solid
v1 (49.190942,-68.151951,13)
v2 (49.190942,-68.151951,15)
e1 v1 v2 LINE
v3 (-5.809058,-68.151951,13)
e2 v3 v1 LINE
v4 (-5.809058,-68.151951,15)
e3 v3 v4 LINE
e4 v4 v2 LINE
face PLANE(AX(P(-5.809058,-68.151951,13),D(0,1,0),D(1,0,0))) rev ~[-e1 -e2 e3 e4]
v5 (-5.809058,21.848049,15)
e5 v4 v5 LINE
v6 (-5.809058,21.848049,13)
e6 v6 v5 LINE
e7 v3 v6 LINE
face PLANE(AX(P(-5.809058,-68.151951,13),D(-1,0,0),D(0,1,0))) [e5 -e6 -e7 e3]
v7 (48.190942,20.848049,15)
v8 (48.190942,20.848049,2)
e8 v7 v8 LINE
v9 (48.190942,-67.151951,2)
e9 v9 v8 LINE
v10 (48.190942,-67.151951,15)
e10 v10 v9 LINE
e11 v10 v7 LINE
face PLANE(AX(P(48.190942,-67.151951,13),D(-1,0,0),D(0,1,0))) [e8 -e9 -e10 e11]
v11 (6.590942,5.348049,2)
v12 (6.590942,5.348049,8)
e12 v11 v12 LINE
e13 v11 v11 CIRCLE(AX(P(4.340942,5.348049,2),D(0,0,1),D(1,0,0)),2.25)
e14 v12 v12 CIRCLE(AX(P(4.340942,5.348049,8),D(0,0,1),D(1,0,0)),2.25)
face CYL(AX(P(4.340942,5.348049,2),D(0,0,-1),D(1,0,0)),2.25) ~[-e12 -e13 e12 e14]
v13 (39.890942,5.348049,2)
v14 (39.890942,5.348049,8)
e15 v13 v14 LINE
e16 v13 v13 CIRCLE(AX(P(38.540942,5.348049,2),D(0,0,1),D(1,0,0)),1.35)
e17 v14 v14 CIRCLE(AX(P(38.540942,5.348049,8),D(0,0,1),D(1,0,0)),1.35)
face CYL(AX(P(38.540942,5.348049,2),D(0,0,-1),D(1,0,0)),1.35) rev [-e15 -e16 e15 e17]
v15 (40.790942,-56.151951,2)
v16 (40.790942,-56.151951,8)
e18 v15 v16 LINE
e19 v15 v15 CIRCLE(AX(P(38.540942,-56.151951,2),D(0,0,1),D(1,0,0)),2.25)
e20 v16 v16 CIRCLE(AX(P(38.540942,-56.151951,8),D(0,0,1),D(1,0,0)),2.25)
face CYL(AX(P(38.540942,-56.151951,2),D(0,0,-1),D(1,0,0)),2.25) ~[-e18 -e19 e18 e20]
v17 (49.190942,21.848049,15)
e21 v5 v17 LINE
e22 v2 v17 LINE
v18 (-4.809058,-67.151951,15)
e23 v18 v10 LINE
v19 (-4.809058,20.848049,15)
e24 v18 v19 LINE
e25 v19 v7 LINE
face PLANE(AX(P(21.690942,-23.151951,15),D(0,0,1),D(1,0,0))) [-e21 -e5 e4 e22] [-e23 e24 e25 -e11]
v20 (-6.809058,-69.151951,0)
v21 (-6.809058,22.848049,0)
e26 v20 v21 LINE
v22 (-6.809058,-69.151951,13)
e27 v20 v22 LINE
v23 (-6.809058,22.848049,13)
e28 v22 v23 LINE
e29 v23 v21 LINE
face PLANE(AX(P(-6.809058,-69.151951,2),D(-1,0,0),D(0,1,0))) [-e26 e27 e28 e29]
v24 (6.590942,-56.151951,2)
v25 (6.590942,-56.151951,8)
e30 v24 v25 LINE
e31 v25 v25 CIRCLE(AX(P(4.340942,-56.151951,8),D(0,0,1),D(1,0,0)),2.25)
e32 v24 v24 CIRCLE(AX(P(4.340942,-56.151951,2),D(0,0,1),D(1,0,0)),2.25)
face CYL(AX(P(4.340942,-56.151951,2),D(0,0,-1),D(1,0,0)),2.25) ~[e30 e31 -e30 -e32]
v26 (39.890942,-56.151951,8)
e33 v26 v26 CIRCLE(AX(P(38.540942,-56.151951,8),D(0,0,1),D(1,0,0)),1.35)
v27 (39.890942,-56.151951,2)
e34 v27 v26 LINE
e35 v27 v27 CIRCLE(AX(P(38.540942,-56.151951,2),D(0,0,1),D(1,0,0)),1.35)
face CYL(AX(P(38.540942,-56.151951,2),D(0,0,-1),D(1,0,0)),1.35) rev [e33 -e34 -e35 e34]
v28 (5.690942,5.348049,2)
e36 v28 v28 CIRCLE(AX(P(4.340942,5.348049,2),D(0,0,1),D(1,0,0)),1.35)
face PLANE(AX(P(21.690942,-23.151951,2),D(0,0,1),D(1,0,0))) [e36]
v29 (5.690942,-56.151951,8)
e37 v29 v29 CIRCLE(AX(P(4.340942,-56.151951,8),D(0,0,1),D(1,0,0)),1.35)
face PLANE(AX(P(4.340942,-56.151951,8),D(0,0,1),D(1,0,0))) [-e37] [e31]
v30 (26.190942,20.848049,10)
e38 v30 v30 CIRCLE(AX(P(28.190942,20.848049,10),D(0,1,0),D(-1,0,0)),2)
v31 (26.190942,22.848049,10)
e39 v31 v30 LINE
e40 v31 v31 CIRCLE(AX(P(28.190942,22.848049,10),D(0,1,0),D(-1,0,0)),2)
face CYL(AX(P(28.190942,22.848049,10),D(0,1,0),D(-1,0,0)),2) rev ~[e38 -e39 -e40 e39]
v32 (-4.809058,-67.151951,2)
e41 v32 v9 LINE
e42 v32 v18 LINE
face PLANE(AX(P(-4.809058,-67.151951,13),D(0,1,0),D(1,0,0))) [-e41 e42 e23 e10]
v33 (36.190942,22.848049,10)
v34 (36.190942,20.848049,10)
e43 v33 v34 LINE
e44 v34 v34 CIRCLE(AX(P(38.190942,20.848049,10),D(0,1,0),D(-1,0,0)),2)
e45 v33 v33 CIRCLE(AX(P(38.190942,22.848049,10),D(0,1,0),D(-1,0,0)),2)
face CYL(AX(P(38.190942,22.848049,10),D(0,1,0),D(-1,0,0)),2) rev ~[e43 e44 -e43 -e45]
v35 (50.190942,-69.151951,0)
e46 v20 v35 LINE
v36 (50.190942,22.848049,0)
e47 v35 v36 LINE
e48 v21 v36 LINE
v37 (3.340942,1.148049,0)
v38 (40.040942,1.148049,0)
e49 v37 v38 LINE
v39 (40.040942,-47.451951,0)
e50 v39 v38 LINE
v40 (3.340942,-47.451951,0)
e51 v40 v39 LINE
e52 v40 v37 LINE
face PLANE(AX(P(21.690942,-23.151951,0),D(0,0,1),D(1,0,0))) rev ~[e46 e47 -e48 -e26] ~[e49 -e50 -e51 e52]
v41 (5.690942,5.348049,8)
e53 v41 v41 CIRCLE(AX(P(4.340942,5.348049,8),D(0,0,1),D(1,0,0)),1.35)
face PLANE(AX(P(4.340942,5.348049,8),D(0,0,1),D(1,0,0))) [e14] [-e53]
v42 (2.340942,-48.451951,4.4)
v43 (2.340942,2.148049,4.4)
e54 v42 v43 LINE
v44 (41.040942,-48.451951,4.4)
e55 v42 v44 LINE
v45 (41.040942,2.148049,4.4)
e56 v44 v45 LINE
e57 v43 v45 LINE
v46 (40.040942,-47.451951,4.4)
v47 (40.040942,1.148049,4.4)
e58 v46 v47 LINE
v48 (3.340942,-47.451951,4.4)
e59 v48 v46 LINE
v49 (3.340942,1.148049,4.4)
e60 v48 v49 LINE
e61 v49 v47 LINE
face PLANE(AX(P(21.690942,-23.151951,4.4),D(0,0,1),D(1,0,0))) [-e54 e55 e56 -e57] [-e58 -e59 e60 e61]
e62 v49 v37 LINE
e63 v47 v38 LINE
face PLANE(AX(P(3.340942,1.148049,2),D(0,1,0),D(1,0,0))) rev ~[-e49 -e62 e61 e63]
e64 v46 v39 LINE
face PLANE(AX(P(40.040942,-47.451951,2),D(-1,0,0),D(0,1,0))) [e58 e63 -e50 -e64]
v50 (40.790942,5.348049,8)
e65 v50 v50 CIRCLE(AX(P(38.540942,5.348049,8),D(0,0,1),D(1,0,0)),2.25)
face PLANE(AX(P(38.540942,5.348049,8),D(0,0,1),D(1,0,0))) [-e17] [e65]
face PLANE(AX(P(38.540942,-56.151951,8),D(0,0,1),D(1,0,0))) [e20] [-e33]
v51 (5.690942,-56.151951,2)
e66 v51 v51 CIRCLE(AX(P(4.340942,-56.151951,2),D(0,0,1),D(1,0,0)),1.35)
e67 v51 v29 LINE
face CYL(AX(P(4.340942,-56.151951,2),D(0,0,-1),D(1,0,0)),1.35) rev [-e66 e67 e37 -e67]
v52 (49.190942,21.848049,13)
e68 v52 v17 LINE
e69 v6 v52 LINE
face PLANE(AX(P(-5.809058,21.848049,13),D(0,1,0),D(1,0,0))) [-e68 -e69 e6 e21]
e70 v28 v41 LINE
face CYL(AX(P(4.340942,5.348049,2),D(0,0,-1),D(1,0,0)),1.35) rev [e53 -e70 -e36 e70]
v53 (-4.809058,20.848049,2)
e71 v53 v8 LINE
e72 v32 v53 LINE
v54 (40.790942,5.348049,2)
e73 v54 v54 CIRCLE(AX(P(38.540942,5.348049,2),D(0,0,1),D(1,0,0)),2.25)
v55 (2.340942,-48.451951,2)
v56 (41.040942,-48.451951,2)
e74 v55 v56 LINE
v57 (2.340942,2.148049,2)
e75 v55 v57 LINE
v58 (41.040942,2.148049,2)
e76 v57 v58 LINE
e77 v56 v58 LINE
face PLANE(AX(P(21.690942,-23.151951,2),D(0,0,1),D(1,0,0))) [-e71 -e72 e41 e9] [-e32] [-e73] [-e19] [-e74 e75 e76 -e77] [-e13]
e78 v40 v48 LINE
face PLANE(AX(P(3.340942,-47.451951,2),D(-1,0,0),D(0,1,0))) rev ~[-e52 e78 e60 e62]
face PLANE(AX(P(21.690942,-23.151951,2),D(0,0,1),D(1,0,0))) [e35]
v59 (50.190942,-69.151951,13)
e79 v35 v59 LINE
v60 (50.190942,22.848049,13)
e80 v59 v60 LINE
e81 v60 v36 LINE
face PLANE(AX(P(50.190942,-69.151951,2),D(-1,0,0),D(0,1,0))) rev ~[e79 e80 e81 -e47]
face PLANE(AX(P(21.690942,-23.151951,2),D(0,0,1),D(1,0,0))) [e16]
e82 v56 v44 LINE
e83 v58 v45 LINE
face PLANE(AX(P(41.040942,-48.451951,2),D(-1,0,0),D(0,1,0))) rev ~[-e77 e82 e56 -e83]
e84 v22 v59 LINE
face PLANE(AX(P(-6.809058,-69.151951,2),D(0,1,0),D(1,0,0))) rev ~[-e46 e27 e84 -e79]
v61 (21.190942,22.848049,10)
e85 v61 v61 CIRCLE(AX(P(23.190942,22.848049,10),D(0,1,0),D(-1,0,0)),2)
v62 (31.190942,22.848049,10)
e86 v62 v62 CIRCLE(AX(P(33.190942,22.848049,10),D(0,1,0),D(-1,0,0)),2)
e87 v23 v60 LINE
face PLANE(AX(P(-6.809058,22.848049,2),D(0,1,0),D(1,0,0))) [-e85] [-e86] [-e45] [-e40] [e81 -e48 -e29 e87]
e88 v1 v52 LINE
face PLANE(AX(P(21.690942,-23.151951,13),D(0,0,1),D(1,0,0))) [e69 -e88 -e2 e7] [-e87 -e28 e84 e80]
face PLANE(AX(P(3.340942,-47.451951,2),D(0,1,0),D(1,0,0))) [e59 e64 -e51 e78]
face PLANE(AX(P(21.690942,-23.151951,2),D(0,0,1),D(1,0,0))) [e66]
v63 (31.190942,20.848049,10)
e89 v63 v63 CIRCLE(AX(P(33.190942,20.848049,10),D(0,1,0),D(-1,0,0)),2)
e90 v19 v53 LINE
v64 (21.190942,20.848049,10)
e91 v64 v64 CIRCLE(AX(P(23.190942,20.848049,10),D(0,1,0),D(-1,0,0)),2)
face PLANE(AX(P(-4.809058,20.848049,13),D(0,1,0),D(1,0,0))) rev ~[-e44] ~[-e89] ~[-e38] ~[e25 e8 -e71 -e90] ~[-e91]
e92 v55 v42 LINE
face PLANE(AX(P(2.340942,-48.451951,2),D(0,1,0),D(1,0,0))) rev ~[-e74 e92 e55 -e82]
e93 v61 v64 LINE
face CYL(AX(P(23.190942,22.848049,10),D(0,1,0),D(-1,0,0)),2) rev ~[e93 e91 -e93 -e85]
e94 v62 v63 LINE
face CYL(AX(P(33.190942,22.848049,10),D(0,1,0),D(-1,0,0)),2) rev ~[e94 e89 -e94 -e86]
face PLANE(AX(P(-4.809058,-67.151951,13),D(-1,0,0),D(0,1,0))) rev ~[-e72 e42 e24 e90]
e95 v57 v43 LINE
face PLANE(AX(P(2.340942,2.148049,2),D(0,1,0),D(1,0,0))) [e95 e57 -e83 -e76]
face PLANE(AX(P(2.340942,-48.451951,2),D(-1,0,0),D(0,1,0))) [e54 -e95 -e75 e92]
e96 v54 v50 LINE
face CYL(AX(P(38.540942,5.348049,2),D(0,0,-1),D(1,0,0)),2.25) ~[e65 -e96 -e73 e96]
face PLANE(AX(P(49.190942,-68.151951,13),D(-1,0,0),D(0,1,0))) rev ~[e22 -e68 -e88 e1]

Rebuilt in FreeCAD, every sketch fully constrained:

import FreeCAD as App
import Part
import Sketcher


def add_polygon(sketch, points):
    """Adds a closed chain of lines whose ends are joined by coincident constraints."""
    first, n = sketch.GeometryCount, len(points)
    for a, b in zip(points, points[1:] + points[:1]):
        sketch.addGeometry(Part.LineSegment(App.Vector(*a, 0), App.Vector(*b, 0)), False)
    for i in range(n):
        sketch.addConstraint(Sketcher.Constraint("Coincident", first + i, 2, first + (i + 1) % n, 1))

doc = App.newDocument("Part")
body = doc.addObject("PartDesign::Body", "Body")

sketch1 = body.newObject("Sketcher::SketchObject", "Sketch")
sketch1.AttachmentSupport = (doc.getObject("XY_Plane"), [""])
sketch1.MapMode = "FlatFace"
add_polygon(sketch1, [(-7, 23), (-7, -69), (50, -69), (50, 23)])
add_polygon(sketch1, [(40, -47), (3, -47), (3, 1), (40, 1)])
sketch1.addConstraint([
    Sketcher.Constraint("Vertical", 0),
    Sketcher.Constraint("Horizontal", 1),
    Sketcher.Constraint("Vertical", 2),
    Sketcher.Constraint("Horizontal", 3),
    Sketcher.Constraint("Horizontal", 4),
    Sketcher.Constraint("Vertical", 5),
    Sketcher.Constraint("Horizontal", 6),
    Sketcher.Constraint("Vertical", 7),
    Sketcher.Constraint("DistanceX", 1, 1, 1, 2, 57.0),
    Sketcher.Constraint("DistanceY", 0, 2, 0, 1, 92.0),
    Sketcher.Constraint("DistanceX", 4, 2, 4, 1, 36.7),
    Sketcher.Constraint("DistanceY", 5, 1, 5, 2, 48.6),
    Sketcher.Constraint("DistanceY", 0, 2, 4, 2, 21.7),
    Sketcher.Constraint("DistanceX", 0, 2, 4, 2, 10.15),
    Sketcher.Constraint("DistanceX", 0, 2, -1, 1, 6.809058),
    Sketcher.Constraint("DistanceY", 0, 2, -1, 1, 69.151951),
])
pad1 = body.newObject("PartDesign::Pad", "Pad")
pad1.Profile = sketch1
pad1.Length = 2

sketch2 = body.newObject("Sketcher::SketchObject", "Sketch001")
sketch2.AttachmentSupport = (doc.getObject("XY_Plane"), [""])
sketch2.MapMode = "FlatFace"
sketch2.AttachmentOffset = App.Placement(App.Vector(0, 0, 2), App.Rotation())
sketch2.addGeometry([
    Part.Circle(App.Vector(4.3, 5.3, 0), App.Vector(0, 0, 1), 2.2),
    Part.Circle(App.Vector(4.3, 5.3, 0), App.Vector(0, 0, 1), 1.4),
    Part.Circle(App.Vector(38.5, 5.3, 0), App.Vector(0, 0, 1), 2.2),
    Part.Circle(App.Vector(38.5, 5.3, 0), App.Vector(0, 0, 1), 1.4),
    Part.Circle(App.Vector(4.3, -56.2, 0), App.Vector(0, 0, 1), 2.2),
    Part.Circle(App.Vector(4.3, -56.2, 0), App.Vector(0, 0, 1), 1.4),
    Part.Circle(App.Vector(38.5, -56.2, 0), App.Vector(0, 0, 1), 2.2),
    Part.Circle(App.Vector(38.5, -56.2, 0), App.Vector(0, 0, 1), 1.4),
], False)
sketch2.addConstraint([
    Sketcher.Constraint("Coincident", 1, 3, 0, 3),
    Sketcher.Constraint("Coincident", 3, 3, 2, 3),
    Sketcher.Constraint("Coincident", 5, 3, 4, 3),
    Sketcher.Constraint("Coincident", 7, 3, 6, 3),
    Sketcher.Constraint("Equal", 0, 2),
    Sketcher.Constraint("Equal", 1, 3),
    Sketcher.Constraint("Equal", 2, 4),
    Sketcher.Constraint("Equal", 3, 5),
    Sketcher.Constraint("Equal", 4, 6),
    Sketcher.Constraint("Equal", 5, 7),
    Sketcher.Constraint("Horizontal", 1, 3, 2, 3),
    Sketcher.Constraint("Horizontal", 5, 3, 6, 3),
    Sketcher.Constraint("Vertical", 1, 3, 4, 3),
    Sketcher.Constraint("Vertical", 3, 3, 6, 3),
    Sketcher.Constraint("Diameter", 0, 4.5),
    Sketcher.Constraint("Diameter", 1, 2.7),
    Sketcher.Constraint("DistanceX", 0, 3, 2, 3, 34.2),
    Sketcher.Constraint("DistanceY", 4, 3, 0, 3, 61.5),
    Sketcher.Constraint("DistanceY", -1, 1, 0, 3, 5.348049),
    Sketcher.Constraint("DistanceX", -1, 1, 0, 3, 4.340942),
])
pad2 = body.newObject("PartDesign::Pad", "Pad001")
pad2.Profile = sketch2
pad2.Length = 6

sketch3 = body.newObject("Sketcher::SketchObject", "Sketch002")
sketch3.AttachmentSupport = (doc.getObject("XY_Plane"), [""])
sketch3.MapMode = "FlatFace"
sketch3.AttachmentOffset = App.Placement(App.Vector(0, 0, 2), App.Rotation())
add_polygon(sketch3, [(-7, 23), (-7, -69), (50, -69), (50, 23)])
add_polygon(sketch3, [(48, -67), (-5, -67), (-5, 21), (48, 21)])
sketch3.addConstraint([
    Sketcher.Constraint("Vertical", 0),
    Sketcher.Constraint("Horizontal", 1),
    Sketcher.Constraint("Vertical", 2),
    Sketcher.Constraint("Horizontal", 3),
    Sketcher.Constraint("Horizontal", 4),
    Sketcher.Constraint("Vertical", 5),
    Sketcher.Constraint("Horizontal", 6),
    Sketcher.Constraint("Vertical", 7),
    Sketcher.Constraint("DistanceX", 1, 1, 1, 2, 57.0),
    Sketcher.Constraint("DistanceX", 4, 2, 4, 1, 53.0),
    Sketcher.Constraint("DistanceY", 0, 2, 0, 1, 92.0),
    Sketcher.Constraint("DistanceY", 5, 1, 5, 2, 88.0),
    Sketcher.Constraint("DistanceX", 0, 2, 4, 2, 2.0),
    Sketcher.Constraint("DistanceY", 0, 2, 4, 2, 2.0),
    Sketcher.Constraint("DistanceX", 0, 2, -1, 1, 6.809058),
    Sketcher.Constraint("DistanceY", 0, 2, -1, 1, 69.151951),
])
pad3 = body.newObject("PartDesign::Pad", "Pad002")
pad3.Profile = sketch3
pad3.Length = 11

sketch4 = body.newObject("Sketcher::SketchObject", "Sketch003")
sketch4.AttachmentSupport = (doc.getObject("XY_Plane"), [""])
sketch4.MapMode = "FlatFace"
sketch4.AttachmentOffset = App.Placement(App.Vector(0, 0, 2), App.Rotation())
add_polygon(sketch4, [(2, 2), (2, -48), (41, -48), (41, 2)])
add_polygon(sketch4, [(40, -47), (3, -47), (3, 1), (40, 1)])
sketch4.addConstraint([
    Sketcher.Constraint("Vertical", 0),
    Sketcher.Constraint("Horizontal", 1),
    Sketcher.Constraint("Vertical", 2),
    Sketcher.Constraint("Horizontal", 3),
    Sketcher.Constraint("Horizontal", 4),
    Sketcher.Constraint("Vertical", 5),
    Sketcher.Constraint("Horizontal", 6),
    Sketcher.Constraint("Vertical", 7),
    Sketcher.Constraint("DistanceX", 1, 1, 1, 2, 38.7),
    Sketcher.Constraint("DistanceX", 4, 2, 4, 1, 36.7),
    Sketcher.Constraint("DistanceY", 0, 2, 0, 1, 50.6),
    Sketcher.Constraint("DistanceY", 5, 1, 5, 2, 48.6),
    Sketcher.Constraint("DistanceX", 0, 2, 4, 2, 1.0),
    Sketcher.Constraint("DistanceY", 0, 2, 4, 2, 1.0),
    Sketcher.Constraint("DistanceY", 0, 2, -1, 1, 48.451951),
    Sketcher.Constraint("DistanceX", -1, 1, 0, 2, 2.340942),
])
pad4 = body.newObject("PartDesign::Pad", "Pad003")
pad4.Profile = sketch4
pad4.Length = 2.4

sketch5 = body.newObject("Sketcher::SketchObject", "Sketch004")
sketch5.AttachmentSupport = (doc.getObject("XY_Plane"), [""])
sketch5.MapMode = "FlatFace"
sketch5.AttachmentOffset = App.Placement(App.Vector(0, 0, 13), App.Rotation())
add_polygon(sketch5, [(-6, 22), (-6, -68), (49, -68), (49, 22)])
add_polygon(sketch5, [(48, -67), (-5, -67), (-5, 21), (48, 21)])
sketch5.addConstraint([
    Sketcher.Constraint("Vertical", 0),
    Sketcher.Constraint("Horizontal", 1),
    Sketcher.Constraint("Vertical", 2),
    Sketcher.Constraint("Horizontal", 3),
    Sketcher.Constraint("Horizontal", 4),
    Sketcher.Constraint("Vertical", 5),
    Sketcher.Constraint("Horizontal", 6),
    Sketcher.Constraint("Vertical", 7),
    Sketcher.Constraint("DistanceX", 1, 1, 1, 2, 55.0),
    Sketcher.Constraint("DistanceX", 4, 2, 4, 1, 53.0),
    Sketcher.Constraint("DistanceY", 0, 2, 0, 1, 90.0),
    Sketcher.Constraint("DistanceY", 5, 1, 5, 2, 88.0),
    Sketcher.Constraint("DistanceX", 0, 2, 4, 2, 1.0),
    Sketcher.Constraint("DistanceY", 0, 2, 4, 2, 1.0),
    Sketcher.Constraint("DistanceX", 0, 2, -1, 1, 5.809058),
    Sketcher.Constraint("DistanceY", 0, 2, -1, 1, 68.151951),
])
pad5 = body.newObject("PartDesign::Pad", "Pad004")
pad5.Profile = sketch5
pad5.Length = 2

sketch6 = body.newObject("Sketcher::SketchObject", "Sketch005")
sketch6.AttachmentSupport = (doc.getObject("XZ_Plane"), [""])
sketch6.MapMode = "FlatFace"
sketch6.AttachmentOffset = App.Placement(App.Vector(0, 0, -22.848049), App.Rotation())
sketch6.addGeometry([
    Part.Circle(App.Vector(38.2, 10, 0), App.Vector(0, 0, 1), 2),
    Part.Circle(App.Vector(33.2, 10, 0), App.Vector(0, 0, 1), 2),
    Part.Circle(App.Vector(28.2, 10, 0), App.Vector(0, 0, 1), 2),
    Part.Circle(App.Vector(23.2, 10, 0), App.Vector(0, 0, 1), 2),
], False)
sketch6.addConstraint([
    Sketcher.Constraint("Equal", 0, 1),
    Sketcher.Constraint("Equal", 1, 2),
    Sketcher.Constraint("Equal", 2, 3),
    Sketcher.Constraint("Horizontal", 0, 3, 1, 3),
    Sketcher.Constraint("Horizontal", 1, 3, 2, 3),
    Sketcher.Constraint("Horizontal", 2, 3, 3, 3),
    Sketcher.Constraint("Diameter", 0, 4.0),
    Sketcher.Constraint("DistanceY", -1, 1, 0, 3, 10.0),
    Sketcher.Constraint("DistanceX", 1, 3, 0, 3, 5.0),
    Sketcher.Constraint("DistanceX", 2, 3, 1, 3, 5.0),
    Sketcher.Constraint("DistanceX", 3, 3, 2, 3, 5.0),
    Sketcher.Constraint("DistanceX", -1, 1, 2, 3, 28.190942),
])
pocket1 = body.newObject("PartDesign::Pocket", "Pocket")
pocket1.Profile = sketch6
pocket1.Length = 5
pocket1.Reversed = True

doc.recompute()
